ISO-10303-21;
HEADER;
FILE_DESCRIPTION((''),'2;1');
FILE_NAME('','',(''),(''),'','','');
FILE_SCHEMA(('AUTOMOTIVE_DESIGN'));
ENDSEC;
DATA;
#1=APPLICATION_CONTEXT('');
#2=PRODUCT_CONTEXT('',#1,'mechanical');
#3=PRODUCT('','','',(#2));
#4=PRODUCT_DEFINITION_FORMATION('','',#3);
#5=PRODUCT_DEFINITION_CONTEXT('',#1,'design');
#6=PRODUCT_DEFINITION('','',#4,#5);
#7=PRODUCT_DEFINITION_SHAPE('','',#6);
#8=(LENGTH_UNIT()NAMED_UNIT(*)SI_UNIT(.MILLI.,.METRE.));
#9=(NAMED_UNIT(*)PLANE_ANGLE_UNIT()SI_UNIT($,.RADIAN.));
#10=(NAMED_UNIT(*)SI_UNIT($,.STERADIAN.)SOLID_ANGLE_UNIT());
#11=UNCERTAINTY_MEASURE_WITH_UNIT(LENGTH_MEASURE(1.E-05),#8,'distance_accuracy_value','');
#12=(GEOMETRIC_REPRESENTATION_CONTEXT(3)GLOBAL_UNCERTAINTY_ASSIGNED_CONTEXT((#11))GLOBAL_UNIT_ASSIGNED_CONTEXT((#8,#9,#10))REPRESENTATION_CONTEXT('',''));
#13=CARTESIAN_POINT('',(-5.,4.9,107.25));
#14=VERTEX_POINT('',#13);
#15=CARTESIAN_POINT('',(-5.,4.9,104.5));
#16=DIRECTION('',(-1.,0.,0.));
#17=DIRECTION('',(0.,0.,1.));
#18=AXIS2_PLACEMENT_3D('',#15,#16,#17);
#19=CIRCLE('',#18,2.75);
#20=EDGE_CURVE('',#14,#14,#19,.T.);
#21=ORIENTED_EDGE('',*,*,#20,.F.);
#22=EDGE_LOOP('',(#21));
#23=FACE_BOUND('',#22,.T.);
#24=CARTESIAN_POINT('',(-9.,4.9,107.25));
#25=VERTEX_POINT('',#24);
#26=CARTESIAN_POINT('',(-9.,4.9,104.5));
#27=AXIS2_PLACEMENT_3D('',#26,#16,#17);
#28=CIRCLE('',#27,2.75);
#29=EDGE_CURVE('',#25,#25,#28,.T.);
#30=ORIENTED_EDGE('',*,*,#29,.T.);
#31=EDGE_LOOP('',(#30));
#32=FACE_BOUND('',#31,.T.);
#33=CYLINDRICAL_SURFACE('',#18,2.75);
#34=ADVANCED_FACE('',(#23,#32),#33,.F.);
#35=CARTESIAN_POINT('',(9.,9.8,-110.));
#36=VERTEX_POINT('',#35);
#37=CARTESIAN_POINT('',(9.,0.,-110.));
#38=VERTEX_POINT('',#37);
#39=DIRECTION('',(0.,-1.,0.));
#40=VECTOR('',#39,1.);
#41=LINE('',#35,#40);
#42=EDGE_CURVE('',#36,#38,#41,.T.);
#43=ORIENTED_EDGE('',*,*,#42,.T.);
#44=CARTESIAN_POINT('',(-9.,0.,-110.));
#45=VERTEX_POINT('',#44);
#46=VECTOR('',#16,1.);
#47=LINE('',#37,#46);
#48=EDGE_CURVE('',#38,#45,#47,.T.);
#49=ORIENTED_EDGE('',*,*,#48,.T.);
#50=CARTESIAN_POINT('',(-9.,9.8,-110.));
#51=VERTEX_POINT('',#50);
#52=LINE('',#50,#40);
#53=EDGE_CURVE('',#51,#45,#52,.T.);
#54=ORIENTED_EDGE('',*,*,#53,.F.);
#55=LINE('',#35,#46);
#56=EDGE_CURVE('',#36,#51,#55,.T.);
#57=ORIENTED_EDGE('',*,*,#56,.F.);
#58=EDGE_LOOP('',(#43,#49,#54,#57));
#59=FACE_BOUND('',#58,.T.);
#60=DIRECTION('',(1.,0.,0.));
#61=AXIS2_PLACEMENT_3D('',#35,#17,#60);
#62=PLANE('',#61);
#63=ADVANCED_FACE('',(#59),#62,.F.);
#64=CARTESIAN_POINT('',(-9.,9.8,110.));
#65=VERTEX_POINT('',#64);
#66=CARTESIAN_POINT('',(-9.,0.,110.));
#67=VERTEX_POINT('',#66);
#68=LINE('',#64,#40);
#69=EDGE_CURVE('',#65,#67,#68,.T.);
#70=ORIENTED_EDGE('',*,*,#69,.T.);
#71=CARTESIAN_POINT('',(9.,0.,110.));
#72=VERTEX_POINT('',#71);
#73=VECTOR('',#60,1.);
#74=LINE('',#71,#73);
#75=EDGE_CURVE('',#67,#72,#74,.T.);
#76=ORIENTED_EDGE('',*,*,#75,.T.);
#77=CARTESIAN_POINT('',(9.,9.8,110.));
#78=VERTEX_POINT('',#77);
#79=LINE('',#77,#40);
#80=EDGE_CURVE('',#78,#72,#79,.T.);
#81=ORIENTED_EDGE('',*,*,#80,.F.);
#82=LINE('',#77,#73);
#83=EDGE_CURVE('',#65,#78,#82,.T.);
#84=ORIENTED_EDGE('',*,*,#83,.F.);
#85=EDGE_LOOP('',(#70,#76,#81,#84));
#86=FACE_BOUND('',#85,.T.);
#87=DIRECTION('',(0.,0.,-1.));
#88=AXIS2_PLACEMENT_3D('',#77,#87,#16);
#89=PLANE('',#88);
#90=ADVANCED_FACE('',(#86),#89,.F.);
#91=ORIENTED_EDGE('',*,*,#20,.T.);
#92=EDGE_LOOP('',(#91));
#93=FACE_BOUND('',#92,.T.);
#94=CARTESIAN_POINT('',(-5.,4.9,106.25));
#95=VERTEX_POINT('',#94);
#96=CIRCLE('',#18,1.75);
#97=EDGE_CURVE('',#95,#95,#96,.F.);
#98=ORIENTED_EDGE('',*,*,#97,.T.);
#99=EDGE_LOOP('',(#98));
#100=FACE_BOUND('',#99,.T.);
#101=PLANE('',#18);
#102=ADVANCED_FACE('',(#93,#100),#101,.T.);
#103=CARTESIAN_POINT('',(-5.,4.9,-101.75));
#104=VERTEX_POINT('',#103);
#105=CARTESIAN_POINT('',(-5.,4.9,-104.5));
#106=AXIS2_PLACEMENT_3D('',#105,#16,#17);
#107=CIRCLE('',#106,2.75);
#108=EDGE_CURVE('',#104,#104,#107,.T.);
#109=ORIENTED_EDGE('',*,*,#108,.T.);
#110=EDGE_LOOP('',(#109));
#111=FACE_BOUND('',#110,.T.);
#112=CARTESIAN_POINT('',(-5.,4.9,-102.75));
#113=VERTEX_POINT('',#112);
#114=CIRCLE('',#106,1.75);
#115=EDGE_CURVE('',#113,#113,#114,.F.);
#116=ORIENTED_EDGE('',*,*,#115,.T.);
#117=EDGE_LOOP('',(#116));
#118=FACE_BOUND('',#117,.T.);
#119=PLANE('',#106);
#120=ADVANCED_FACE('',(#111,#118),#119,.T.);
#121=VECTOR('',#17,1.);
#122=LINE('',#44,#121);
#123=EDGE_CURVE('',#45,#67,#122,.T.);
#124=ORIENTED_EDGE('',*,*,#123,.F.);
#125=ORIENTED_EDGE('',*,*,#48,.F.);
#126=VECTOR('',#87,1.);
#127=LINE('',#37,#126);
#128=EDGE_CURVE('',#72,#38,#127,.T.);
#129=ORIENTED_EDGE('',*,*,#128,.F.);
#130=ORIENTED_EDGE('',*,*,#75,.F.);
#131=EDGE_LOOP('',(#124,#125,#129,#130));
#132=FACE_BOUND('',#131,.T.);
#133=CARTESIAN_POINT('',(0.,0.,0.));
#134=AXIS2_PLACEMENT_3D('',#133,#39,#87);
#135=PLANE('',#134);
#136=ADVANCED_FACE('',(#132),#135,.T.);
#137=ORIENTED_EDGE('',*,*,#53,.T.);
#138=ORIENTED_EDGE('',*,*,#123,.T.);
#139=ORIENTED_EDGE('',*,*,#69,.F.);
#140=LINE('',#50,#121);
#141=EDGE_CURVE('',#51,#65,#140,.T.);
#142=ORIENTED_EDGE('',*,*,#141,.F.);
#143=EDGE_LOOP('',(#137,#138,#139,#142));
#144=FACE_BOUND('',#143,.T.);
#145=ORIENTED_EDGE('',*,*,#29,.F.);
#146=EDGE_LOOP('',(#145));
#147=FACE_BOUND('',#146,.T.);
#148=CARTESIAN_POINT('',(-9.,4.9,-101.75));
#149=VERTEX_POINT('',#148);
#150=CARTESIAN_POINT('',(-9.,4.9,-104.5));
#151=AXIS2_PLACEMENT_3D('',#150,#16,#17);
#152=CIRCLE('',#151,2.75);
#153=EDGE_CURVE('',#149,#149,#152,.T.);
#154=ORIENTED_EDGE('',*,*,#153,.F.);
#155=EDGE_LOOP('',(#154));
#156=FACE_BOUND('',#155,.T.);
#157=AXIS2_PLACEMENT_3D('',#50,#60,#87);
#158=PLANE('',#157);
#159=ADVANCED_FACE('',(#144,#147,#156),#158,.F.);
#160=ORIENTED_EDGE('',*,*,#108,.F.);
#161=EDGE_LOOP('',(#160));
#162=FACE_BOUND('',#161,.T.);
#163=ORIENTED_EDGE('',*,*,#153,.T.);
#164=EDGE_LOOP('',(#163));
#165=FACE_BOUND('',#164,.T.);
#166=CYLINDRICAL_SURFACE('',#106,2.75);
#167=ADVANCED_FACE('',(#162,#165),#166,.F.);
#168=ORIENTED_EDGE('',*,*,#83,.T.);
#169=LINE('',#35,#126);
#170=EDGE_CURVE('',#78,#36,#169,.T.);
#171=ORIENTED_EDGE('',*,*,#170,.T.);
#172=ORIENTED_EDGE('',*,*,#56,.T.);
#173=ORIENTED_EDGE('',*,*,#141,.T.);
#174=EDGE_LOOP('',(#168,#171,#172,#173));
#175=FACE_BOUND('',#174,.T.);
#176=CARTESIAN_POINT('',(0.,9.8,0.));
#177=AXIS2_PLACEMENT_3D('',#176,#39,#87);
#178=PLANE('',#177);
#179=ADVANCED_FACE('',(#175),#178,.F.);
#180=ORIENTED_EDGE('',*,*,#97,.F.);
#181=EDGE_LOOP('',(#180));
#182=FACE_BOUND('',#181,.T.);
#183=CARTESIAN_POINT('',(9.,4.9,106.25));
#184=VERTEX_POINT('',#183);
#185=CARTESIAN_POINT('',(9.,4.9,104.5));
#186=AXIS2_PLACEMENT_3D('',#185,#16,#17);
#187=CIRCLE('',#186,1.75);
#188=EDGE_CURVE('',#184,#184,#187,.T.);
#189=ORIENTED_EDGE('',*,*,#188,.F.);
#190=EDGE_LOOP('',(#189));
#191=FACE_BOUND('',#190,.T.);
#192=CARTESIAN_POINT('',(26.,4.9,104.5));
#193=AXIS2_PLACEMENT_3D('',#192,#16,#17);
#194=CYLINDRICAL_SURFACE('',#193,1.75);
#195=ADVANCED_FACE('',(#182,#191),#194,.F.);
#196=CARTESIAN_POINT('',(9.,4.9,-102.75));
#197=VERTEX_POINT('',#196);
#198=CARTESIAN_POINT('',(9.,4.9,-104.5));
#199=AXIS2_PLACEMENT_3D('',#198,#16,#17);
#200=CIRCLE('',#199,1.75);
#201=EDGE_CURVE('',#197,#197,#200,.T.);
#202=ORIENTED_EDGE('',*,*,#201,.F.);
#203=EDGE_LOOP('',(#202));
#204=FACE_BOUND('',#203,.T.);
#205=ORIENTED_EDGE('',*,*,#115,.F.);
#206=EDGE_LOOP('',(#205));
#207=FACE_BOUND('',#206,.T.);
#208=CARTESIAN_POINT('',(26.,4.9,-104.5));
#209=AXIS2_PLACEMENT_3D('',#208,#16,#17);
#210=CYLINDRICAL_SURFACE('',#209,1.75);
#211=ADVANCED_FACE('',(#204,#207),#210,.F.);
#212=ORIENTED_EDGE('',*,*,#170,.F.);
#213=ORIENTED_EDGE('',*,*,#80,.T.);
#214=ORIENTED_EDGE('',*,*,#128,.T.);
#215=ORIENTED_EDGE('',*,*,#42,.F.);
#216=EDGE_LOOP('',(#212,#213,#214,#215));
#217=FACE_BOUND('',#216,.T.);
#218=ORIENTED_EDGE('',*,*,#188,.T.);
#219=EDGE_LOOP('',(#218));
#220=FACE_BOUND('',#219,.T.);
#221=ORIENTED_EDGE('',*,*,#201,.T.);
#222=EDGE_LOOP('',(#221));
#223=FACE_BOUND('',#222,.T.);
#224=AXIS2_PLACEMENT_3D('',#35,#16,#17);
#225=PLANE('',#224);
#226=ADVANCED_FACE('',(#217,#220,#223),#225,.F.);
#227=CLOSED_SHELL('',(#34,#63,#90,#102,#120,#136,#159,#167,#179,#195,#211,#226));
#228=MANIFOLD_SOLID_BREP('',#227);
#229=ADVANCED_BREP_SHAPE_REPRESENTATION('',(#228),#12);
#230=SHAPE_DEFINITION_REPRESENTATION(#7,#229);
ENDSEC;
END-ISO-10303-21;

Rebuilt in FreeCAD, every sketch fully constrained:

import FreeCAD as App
import Part
import Sketcher

V = App.Vector


def add_polygon(sketch, points):
    """Adds a closed chain of lines whose ends are joined by coincident constraints."""
    first, n = sketch.GeometryCount, len(points)
    for a, b in zip(points, points[1:] + points[:1]):
        sketch.addGeometry(Part.LineSegment(App.Vector(*a, 0), App.Vector(*b, 0)), False)
    for i in range(n):
        sketch.addConstraint(Sketcher.Constraint("Coincident", first + i, 2, first + (i + 1) % n, 1))

doc = App.newDocument("Part")
body = doc.addObject("PartDesign::Body", "Body")

# Sketch on XZ plane
sketch1 = body.newObject("Sketcher::SketchObject", "Sketch")
sketch1.AttachmentSupport = (doc.getObject("XZ_Plane"), [""])
sketch1.MapMode = "FlatFace"
add_polygon(sketch1, [(-9, -110), (-9, 110), (9, 110), (9, -110)])  # lines 0-3
sketch1.addConstraint([
    Sketcher.Constraint("Vertical", 0),
    Sketcher.Constraint("Horizontal", 1),
    Sketcher.Constraint("Vertical", 2),
    Sketcher.Constraint("Horizontal", 3),
    Sketcher.Constraint("Symmetric", 0, 2, 2, 2, -1, 1),
    Sketcher.Constraint("DistanceX", 1, 1, 1, 2, 18.0),
    Sketcher.Constraint("DistanceY", 0, 1, 0, 2, 220.0),
])
pad1 = body.newObject("PartDesign::Pad", "Pad")
pad1.Profile = sketch1
pad1.Length = 9.8
pad1.Reversed = True

# Sketch on YZ plane
sketch2 = body.newObject("Sketcher::SketchObject", "Sketch001")
sketch2.AttachmentSupport = (doc.getObject("YZ_Plane"), [""])
sketch2.MapMode = "FlatFace"
sketch2.AttachmentOffset = App.Placement(V(0, 0, -9), App.Rotation())
sketch2.addGeometry([
    Part.Circle(V(4.9, -104.5, 0), V(0, 0, 1), 1.75),
    Part.Circle(V(4.9, 104.5, 0), V(0, 0, 1), 1.75),
], False)
sketch2.addConstraint([
    Sketcher.Constraint("Equal", 0, 1),
    Sketcher.Constraint("Symmetric", 0, 3, 1, 3, -1),
    Sketcher.Constraint("Diameter", 0, 3.5),
    Sketcher.Constraint("DistanceY", 0, 3, 1, 3, 209.0),
    Sketcher.Constraint("DistanceX", -1, 1, 0, 3, 4.9),
])
pocket1 = body.newObject("PartDesign::Pocket", "Pocket")
pocket1.Profile = sketch2
pocket1.Length = 35
pocket1.Reversed = True

# Sketch on YZ plane
sketch3 = body.newObject("Sketcher::SketchObject", "Sketch002")
sketch3.AttachmentSupport = (doc.getObject("YZ_Plane"), [""])
sketch3.MapMode = "FlatFace"
sketch3.AttachmentOffset = App.Placement(V(0, 0, -9), App.Rotation())
sketch3.addGeometry([
    Part.Circle(V(4.9, -104.5, 0), V(0, 0, 1), 2.75),
    Part.Circle(V(4.9, 104.5, 0), V(0, 0, 1), 2.75),
], False)
sketch3.addConstraint([
    Sketcher.Constraint("Equal", 0, 1),
    Sketcher.Constraint("Symmetric", 0, 3, 1, 3, -1),
    Sketcher.Constraint("Diameter", 0, 5.5),
    Sketcher.Constraint("DistanceY", 0, 3, 1, 3, 209.0),
    Sketcher.Constraint("DistanceX", -1, 1, 0, 3, 4.9),
])
pocket2 = body.newObject("PartDesign::Pocket", "Pocket001")
pocket2.Profile = sketch3
pocket2.Length = 4
pocket2.Reversed = True

doc.recompute()
